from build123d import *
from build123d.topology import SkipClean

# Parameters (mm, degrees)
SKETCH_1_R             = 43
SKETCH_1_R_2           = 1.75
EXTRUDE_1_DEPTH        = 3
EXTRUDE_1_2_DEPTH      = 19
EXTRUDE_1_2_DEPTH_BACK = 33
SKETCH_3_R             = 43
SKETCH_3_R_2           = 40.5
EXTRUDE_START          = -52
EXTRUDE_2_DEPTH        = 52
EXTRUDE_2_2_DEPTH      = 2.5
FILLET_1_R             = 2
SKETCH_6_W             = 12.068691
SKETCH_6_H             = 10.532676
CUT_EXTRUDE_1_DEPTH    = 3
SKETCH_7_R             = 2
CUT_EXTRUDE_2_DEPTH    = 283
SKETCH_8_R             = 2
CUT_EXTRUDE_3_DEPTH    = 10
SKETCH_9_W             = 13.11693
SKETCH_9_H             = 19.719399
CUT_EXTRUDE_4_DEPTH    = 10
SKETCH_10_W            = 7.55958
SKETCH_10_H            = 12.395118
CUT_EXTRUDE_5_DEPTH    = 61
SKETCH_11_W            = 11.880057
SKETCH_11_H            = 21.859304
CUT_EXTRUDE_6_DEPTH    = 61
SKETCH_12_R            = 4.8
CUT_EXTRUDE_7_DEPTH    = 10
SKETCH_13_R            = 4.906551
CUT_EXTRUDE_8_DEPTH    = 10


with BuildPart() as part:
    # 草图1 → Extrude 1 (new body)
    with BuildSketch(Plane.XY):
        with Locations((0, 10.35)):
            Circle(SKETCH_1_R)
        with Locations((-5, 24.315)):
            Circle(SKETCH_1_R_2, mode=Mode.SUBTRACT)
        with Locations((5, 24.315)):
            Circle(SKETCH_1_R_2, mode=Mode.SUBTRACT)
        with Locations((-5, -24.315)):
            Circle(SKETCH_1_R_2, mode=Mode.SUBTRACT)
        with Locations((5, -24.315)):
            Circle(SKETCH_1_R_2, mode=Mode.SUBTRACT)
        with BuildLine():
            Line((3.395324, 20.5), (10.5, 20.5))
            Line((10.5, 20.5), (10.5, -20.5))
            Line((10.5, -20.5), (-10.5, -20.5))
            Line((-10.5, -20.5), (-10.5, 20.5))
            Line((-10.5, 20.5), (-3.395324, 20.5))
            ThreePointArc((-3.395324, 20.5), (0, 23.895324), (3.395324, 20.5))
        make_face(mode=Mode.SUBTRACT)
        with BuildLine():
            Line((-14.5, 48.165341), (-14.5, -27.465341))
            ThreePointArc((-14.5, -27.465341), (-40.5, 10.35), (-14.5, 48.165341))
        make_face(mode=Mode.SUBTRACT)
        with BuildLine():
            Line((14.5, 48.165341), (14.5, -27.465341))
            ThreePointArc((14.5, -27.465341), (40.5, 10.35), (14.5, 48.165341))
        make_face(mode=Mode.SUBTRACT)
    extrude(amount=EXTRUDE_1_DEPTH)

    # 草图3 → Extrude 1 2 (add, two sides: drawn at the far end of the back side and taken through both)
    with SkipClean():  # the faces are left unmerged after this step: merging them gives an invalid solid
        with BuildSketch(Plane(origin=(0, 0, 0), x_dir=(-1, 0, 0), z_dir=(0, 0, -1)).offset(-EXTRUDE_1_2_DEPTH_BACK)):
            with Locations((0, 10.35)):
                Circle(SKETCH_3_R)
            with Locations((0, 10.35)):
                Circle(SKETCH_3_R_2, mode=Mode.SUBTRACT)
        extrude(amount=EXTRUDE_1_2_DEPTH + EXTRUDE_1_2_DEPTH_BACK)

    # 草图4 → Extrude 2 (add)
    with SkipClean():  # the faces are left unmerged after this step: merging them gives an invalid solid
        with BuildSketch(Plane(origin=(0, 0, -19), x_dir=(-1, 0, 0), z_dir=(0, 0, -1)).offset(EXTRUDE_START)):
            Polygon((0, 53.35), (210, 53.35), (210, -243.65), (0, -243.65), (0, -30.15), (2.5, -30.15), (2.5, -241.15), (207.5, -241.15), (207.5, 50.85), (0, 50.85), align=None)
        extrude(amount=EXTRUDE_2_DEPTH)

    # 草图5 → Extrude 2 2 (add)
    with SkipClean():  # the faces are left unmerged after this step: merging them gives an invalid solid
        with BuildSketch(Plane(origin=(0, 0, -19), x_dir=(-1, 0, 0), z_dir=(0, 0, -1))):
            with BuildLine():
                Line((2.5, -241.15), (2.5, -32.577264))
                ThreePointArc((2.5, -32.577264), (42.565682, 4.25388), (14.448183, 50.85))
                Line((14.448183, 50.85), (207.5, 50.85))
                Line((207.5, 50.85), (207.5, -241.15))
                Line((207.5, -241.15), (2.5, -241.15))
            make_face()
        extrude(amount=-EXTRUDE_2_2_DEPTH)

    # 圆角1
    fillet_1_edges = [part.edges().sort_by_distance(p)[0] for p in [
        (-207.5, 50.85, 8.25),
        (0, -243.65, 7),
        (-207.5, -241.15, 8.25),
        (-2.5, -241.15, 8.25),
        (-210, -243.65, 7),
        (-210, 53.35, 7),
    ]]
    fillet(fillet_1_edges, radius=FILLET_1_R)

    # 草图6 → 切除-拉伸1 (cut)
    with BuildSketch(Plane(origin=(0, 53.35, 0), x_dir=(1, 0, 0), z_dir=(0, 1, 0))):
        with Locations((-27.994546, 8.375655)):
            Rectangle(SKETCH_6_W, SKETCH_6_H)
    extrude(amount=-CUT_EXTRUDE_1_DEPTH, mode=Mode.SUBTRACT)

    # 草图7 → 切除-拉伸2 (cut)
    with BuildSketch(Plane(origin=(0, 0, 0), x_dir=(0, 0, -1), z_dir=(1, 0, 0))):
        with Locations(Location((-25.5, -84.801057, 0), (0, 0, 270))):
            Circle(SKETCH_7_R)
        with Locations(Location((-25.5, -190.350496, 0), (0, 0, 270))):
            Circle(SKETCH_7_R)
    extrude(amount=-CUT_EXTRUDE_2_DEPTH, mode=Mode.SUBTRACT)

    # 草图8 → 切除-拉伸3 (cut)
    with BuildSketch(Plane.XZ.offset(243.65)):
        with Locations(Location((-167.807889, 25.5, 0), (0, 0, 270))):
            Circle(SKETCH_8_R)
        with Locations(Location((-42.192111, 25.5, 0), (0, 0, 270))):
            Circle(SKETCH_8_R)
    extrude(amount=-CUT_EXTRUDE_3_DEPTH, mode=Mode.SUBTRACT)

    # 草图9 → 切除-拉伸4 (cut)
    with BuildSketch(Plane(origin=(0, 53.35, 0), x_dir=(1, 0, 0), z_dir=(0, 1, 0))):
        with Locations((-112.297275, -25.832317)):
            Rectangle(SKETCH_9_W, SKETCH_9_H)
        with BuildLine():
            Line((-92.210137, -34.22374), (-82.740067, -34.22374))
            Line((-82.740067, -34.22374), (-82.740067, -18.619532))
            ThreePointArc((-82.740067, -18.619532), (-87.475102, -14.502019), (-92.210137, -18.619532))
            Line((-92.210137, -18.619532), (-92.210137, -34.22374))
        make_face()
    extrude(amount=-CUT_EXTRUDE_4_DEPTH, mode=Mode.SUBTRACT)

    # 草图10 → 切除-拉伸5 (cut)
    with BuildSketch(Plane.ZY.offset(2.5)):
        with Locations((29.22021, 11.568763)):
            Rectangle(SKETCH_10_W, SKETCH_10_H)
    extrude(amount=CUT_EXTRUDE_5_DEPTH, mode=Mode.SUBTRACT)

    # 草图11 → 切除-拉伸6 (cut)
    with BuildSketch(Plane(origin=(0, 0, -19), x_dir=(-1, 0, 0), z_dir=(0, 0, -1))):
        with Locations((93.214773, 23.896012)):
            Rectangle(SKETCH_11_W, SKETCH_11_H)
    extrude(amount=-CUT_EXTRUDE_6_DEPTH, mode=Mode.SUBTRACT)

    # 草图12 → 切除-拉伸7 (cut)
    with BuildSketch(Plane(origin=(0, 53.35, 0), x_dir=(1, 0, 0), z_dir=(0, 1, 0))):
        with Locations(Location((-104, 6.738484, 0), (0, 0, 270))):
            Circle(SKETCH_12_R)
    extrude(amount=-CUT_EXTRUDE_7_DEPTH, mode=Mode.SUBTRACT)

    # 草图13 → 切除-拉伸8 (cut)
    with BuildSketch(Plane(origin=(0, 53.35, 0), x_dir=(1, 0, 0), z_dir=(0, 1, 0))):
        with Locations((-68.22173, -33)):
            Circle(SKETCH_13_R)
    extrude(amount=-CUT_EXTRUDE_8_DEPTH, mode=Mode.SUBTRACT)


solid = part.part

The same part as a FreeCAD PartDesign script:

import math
import FreeCAD as App
import Part
import Sketcher


def edges_at(feature, points):
    """Names of the edges that pass closest to the given points."""
    edges = feature.Shape.Edges
    near = lambda p: min(range(len(edges)), key=lambda i: edges[i].distToShape(Part.Vertex(*p))[0])
    return sorted({f"Edge{near(p) + 1}" for p in points})

doc = App.newDocument("Part")
body = doc.addObject("PartDesign::Body", "Body")

# Sketch on XY plane
sketch1 = doc.addObject("Sketcher::SketchObject", "Sketch")
body.addObject(sketch1)
sketch1.AttachmentSupport = (doc.XY_Plane, [""])
sketch1.MapMode = "FlatFace"
sketch1.addGeometry([
    Part.Circle(App.Vector(0, 10.3, 0), App.Vector(0, 0, 1), 43),  # 0
    Part.Circle(App.Vector(-5, -24.3, 0), App.Vector(0, 0, 1), 1.8),  # 1
    Part.Circle(App.Vector(5, -24.3, 0), App.Vector(0, 0, 1), 1.8),  # 2
    Part.ArcOfCircle(Part.Circle(App.Vector(0, 20.5, 0), App.Vector(0, 0, 1), 3.4), math.radians(0), math.radians(180)),  # 3
    Part.LineSegment(App.Vector(3.4, 20.5, 0), App.Vector(10.5, 20.5, 0)),  # 4
    Part.LineSegment(App.Vector(10.5, 20.5, 0), App.Vector(10.5, -20.5, 0)),  # 5
    Part.LineSegment(App.Vector(10.5, -20.5, 0), App.Vector(-10.5, -20.5, 0)),  # 6
    Part.LineSegment(App.Vector(-10.5, -20.5, 0), App.Vector(-10.5, 20.5, 0)),  # 7
    Part.LineSegment(App.Vector(-10.5, 20.5, 0), App.Vector(-3.4, 20.5, 0)),  # 8
    Part.ArcOfCircle(Part.Circle(App.Vector(0, 10.3, 0), App.Vector(0, 0, 1), 40.5), math.radians(111), math.radians(249)),  # 9
    Part.LineSegment(App.Vector(-14.5, 48.2, 0), App.Vector(-14.5, -27.5, 0)),  # 10
    Part.Circle(App.Vector(-5, 24.3, 0), App.Vector(0, 0, 1), 1.8),  # 11
    Part.Circle(App.Vector(5, 24.3, 0), App.Vector(0, 0, 1), 1.8),  # 12
    Part.LineSegment(App.Vector(14.5, -27.5, 0), App.Vector(14.5, 48.2, 0)),  # 13
    Part.ArcOfCircle(Part.Circle(App.Vector(0, 10.3, 0), App.Vector(0, 0, 1), 40.5), math.radians(-69), math.radians(69)),  # 14
], False)
sketch1.addConstraint([
    Sketcher.Constraint("Coincident", 3, 1, 4, 1),
    Sketcher.Constraint("Coincident", 4, 2, 5, 1),
    Sketcher.Constraint("Coincident", 5, 2, 6, 1),
    Sketcher.Constraint("Coincident", 6, 2, 7, 1),
    Sketcher.Constraint("Coincident", 7, 2, 8, 1),
    Sketcher.Constraint("Coincident", 8, 2, 3, 2),
    Sketcher.Constraint("Coincident", 9, 1, 10, 1),
    Sketcher.Constraint("Coincident", 10, 2, 9, 2),
    Sketcher.Constraint("Coincident", 13, 1, 14, 1),
    Sketcher.Constraint("Coincident", 14, 2, 13, 2),
    Sketcher.Constraint("Horizontal", 4),
    Sketcher.Constraint("Vertical", 5),
    Sketcher.Constraint("Horizontal", 6),
    Sketcher.Constraint("Vertical", 7),
    Sketcher.Constraint("Horizontal", 8),
    Sketcher.Constraint("Vertical", 10),
    Sketcher.Constraint("Vertical", 13),
    Sketcher.Constraint("Coincident", 9, 3, 0, 3),
    Sketcher.Constraint("Coincident", 14, 3, 0, 3),
    Sketcher.Constraint("Equal", 1, 2),
    Sketcher.Constraint("Equal", 2, 11),
    Sketcher.Constraint("Equal", 11, 12),
    Sketcher.Constraint("Equal", 9, 14),
    Sketcher.Constraint("Symmetric", 2, 3, 11, 3, -1, 1),
    Sketcher.Constraint("Symmetric", 1, 3, 12, 3, -1, 1),
    Sketcher.Constraint("Symmetric", 4, 2, 6, 2, -1, 1),
    Sketcher.Constraint("Symmetric", 1, 3, 2, 3, -2),
    Sketcher.Constraint("Symmetric", 3, 1, 8, 2, -2),
    Sketcher.Constraint("Symmetric", 10, 2, 13, 1, -2),
    Sketcher.Constraint("Diameter", 0, 86.0),
    Sketcher.Constraint("Diameter", 1, 3.5),
    Sketcher.Constraint("Radius", 9, 40.5),
    Sketcher.Constraint("DistanceX", 6, 2, 6, 1, 21.0),
    Sketcher.Constraint("DistanceY", 5, 2, 5, 1, 41.0),
    Sketcher.Constraint("DistanceX", 1, 3, -1, 1, 5.0),
    Sketcher.Constraint("DistanceX", 9, 1, 7, 2, 4.0),
    Sketcher.Constraint("DistanceY", -1, 1, 3, 3, 20.5),
    Sketcher.Constraint("DistanceY", -1, 1, 0, 3, 10.35),
    Sketcher.Constraint("DistanceY", 1, 3, 11, 3, 48.63),
    Sketcher.Constraint("Radius", 3, 3.395324),
])
pad1 = doc.addObject("PartDesign::Pad", "Pad")
body.addObject(pad1)
pad1.Profile = sketch1
pad1.Length = 3

# Sketch on XY plane
sketch2 = doc.addObject("Sketcher::SketchObject", "Sketch001")
body.addObject(sketch2)
sketch2.AttachmentSupport = (doc.XY_Plane, [""])
sketch2.MapMode = "FlatFace"
sketch2.addGeometry([
    Part.Circle(App.Vector(0, 10, 0), App.Vector(0, 0, 1), 43),
    Part.Circle(App.Vector(0, 10, 0), App.Vector(0, 0, 1), 40),
], False)
sketch2.addConstraint([
    Sketcher.Constraint("Coincident", 1, 3, 0, 3),
    Sketcher.Constraint("PointOnObject", 0, 3, -2),
    Sketcher.Constraint("Diameter", 0, 86.0),
    Sketcher.Constraint("Diameter", 1, 81.0),
    Sketcher.Constraint("DistanceY", -1, 1, 0, 3, 10.35),
])
pad2 = doc.addObject("PartDesign::Pad", "Pad001")
body.addObject(pad2)
pad2.Profile = sketch2
pad2.Type = "TwoLengths"
pad2.Length = 19
pad2.Length2 = 33
pad2.Reversed = True

# Sketch on XY plane
sketch3 = doc.addObject("Sketcher::SketchObject", "Sketch002")
body.addObject(sketch3)
sketch3.AttachmentSupport = (doc.XY_Plane, [""])
sketch3.MapMode = "FlatFace"
sketch3.AttachmentOffset = App.Placement(App.Vector(0, 0, 33), App.Rotation())
sketch3.addGeometry([
    Part.LineSegment(App.Vector(-210, 53.4, 0), App.Vector(0, 53.4, 0)),  # 0
    Part.LineSegment(App.Vector(0, 53.4, 0), App.Vector(0, 50.9, 0)),  # 1
    Part.LineSegment(App.Vector(0, 50.9, 0), App.Vector(-207.5, 50.9, 0)),  # 2
    Part.LineSegment(App.Vector(-207.5, 50.9, 0), App.Vector(-207.5, -241.2, 0)),  # 3
    Part.LineSegment(App.Vector(-207.5, -241.2, 0), App.Vector(-2.5, -241.2, 0)),  # 4
    Part.LineSegment(App.Vector(-2.5, -241.2, 0), App.Vector(-2.5, -30.1, 0)),  # 5
    Part.LineSegment(App.Vector(-2.5, -30.1, 0), App.Vector(0, -30.1, 0)),  # 6
    Part.LineSegment(App.Vector(0, -30.1, 0), App.Vector(0, -243.7, 0)),  # 7
    Part.LineSegment(App.Vector(0, -243.7, 0), App.Vector(-210, -243.7, 0)),  # 8
    Part.LineSegment(App.Vector(-210, -243.7, 0), App.Vector(-210, 53.4, 0)),  # 9
], False)
sketch3.addConstraint([
    Sketcher.Constraint("Coincident", 0, 2, 1, 1),
    Sketcher.Constraint("Coincident", 1, 2, 2, 1),
    Sketcher.Constraint("Coincident", 2, 2, 3, 1),
    Sketcher.Constraint("Coincident", 3, 2, 4, 1),
    Sketcher.Constraint("Coincident", 4, 2, 5, 1),
    Sketcher.Constraint("Coincident", 5, 2, 6, 1),
    Sketcher.Constraint("Coincident", 6, 2, 7, 1),
    Sketcher.Constraint("Coincident", 7, 2, 8, 1),
    Sketcher.Constraint("Coincident", 8, 2, 9, 1),
    Sketcher.Constraint("Coincident", 9, 2, 0, 1),
    Sketcher.Constraint("Horizontal", 0),
    Sketcher.Constraint("Vertical", 1),
    Sketcher.Constraint("Horizontal", 2),
    Sketcher.Constraint("Vertical", 3),
    Sketcher.Constraint("Horizontal", 4),
    Sketcher.Constraint("Vertical", 5),
    Sketcher.Constraint("Horizontal", 6),
    Sketcher.Constraint("Vertical", 7),
    Sketcher.Constraint("Horizontal", 8),
    Sketcher.Constraint("Vertical", 9),
    Sketcher.Constraint("PointOnObject", 0, 2, -2),
    Sketcher.Constraint("PointOnObject", 6, 2, -2),
    Sketcher.Constraint("Equal", 6, 1),
    Sketcher.Constraint("DistanceX", 0, 1, 0, 2, 210.0),
    Sketcher.Constraint("DistanceX", 4, 1, 4, 2, 205.0),
    Sketcher.Constraint("DistanceY", 3, 2, 3, 1, 292.0),
    Sketcher.Constraint("DistanceY", 5, 1, 5, 2, 211.0),
    Sketcher.Constraint("DistanceY", 9, 1, 9, 2, 297.0),
    Sketcher.Constraint("DistanceX", 2, 2, 2, 1, 207.5),
    Sketcher.Constraint("DistanceY", -1, 1, 0, 2, 53.35),
])
pad3 = doc.addObject("PartDesign::Pad", "Pad002")
body.addObject(pad3)
pad3.Profile = sketch3
pad3.Length = 52
pad3.Reversed = True

# Sketch on XY plane
sketch4 = doc.addObject("Sketcher::SketchObject", "Sketch003")
body.addObject(sketch4)
sketch4.AttachmentSupport = (doc.XY_Plane, [""])
sketch4.MapMode = "FlatFace"
sketch4.AttachmentOffset = App.Placement(App.Vector(0, 0, -19), App.Rotation())
sketch4.addGeometry([
    Part.LineSegment(App.Vector(-2, -33, 0), App.Vector(-2, -241, 0)),  # 0
    Part.LineSegment(App.Vector(-2, -241, 0), App.Vector(-208, -241, 0)),  # 1
    Part.LineSegment(App.Vector(-208, -241, 0), App.Vector(-208, 51, 0)),  # 2
    Part.LineSegment(App.Vector(-208, 51, 0), App.Vector(-14, 51, 0)),  # 3
    Part.ArcOfCircle(Part.Circle(App.Vector(0, 10, 0), App.Vector(0, 0, 1), 43), math.radians(110), math.radians(267)),  # 4
], False)
sketch4.addConstraint([
    Sketcher.Constraint("Coincident", 0, 2, 1, 1),
    Sketcher.Constraint("Coincident", 1, 2, 2, 1),
    Sketcher.Constraint("Coincident", 2, 2, 3, 1),
    Sketcher.Constraint("Coincident", 3, 2, 4, 1),
    Sketcher.Constraint("Coincident", 4, 2, 0, 1),
    Sketcher.Constraint("Vertical", 0),
    Sketcher.Constraint("Horizontal", 1),
    Sketcher.Constraint("Vertical", 2),
    Sketcher.Constraint("Horizontal", 3),
    Sketcher.Constraint("PointOnObject", 4, 3, -2),
    Sketcher.Constraint("Radius", 4, 43.0),
    Sketcher.Constraint("DistanceX", 1, 2, 1, 1, 205.0),
    Sketcher.Constraint("DistanceY", 2, 1, 2, 2, 292.0),
    Sketcher.Constraint("DistanceX", 0, 2, -1, 1, 2.5),
    Sketcher.Constraint("DistanceY", 0, 2, 4, 3, 251.5),
    Sketcher.Constraint("DistanceY", -1, 1, 4, 3, 10.35),
])
pad4 = doc.addObject("PartDesign::Pad", "Pad003")
body.addObject(pad4)
pad4.Profile = sketch4
pad4.Length = 2.5
doc.recompute()

fillet = doc.addObject("PartDesign::Fillet", "Fillet")
body.addObject(fillet)
fillet.Base = (pad4, edges_at(pad4, [
    (-207.5, 50.85, 8.25),
    (0, -243.65, 7),
    (-207.5, -241.15, 8.25),
    (-2.5, -241.15, 8.25),
    (-210, -243.65, 7),
    (-210, 53.35, 7),
]))
fillet.Radius = 2

# Sketch on XZ plane
sketch5 = doc.addObject("Sketcher::SketchObject", "Sketch004")
body.addObject(sketch5)
sketch5.AttachmentSupport = (doc.XZ_Plane, [""])
sketch5.MapMode = "FlatFace"
sketch5.AttachmentOffset = App.Placement(App.Vector(0, 0, -53.35), App.Rotation())
sketch5.addGeometry([
    Part.LineSegment(App.Vector(-34, -14, 0), App.Vector(-34, -3, 0)),
    Part.LineSegment(App.Vector(-34, -3, 0), App.Vector(-22, -3, 0)),
    Part.LineSegment(App.Vector(-22, -3, 0), App.Vector(-22, -14, 0)),
    Part.LineSegment(App.Vector(-22, -14, 0), App.Vector(-34, -14, 0)),
], False)
sketch5.addConstraint([
    Sketcher.Constraint("Coincident", 0, 2, 1, 1),
    Sketcher.Constraint("Coincident", 1, 2, 2, 1),
    Sketcher.Constraint("Coincident", 2, 2, 3, 1),
    Sketcher.Constraint("Coincident", 3, 2, 0, 1),
    Sketcher.Constraint("Vertical", 0),
    Sketcher.Constraint("Horizontal", 1),
    Sketcher.Constraint("Vertical", 2),
    Sketcher.Constraint("Horizontal", 3),
    Sketcher.Constraint("DistanceX", 1, 1, 1, 2, 12.068691),
    Sketcher.Constraint("DistanceX", 1, 2, -1, 1, 21.9602),
    Sketcher.Constraint("DistanceY", 0, 1, 0, 2, 10.532676),
    Sketcher.Constraint("DistanceY", 0, 2, -1, 1, 3.109317),
])
pocket1 = doc.addObject("PartDesign::Pocket", "Pocket")
body.addObject(pocket1)
pocket1.Profile = sketch5
pocket1.Length = 3
pocket1.Reversed = True

# Sketch on YZ plane
sketch6 = doc.addObject("Sketcher::SketchObject", "Sketch005")
body.addObject(sketch6)
sketch6.AttachmentSupport = (doc.YZ_Plane, [""])
sketch6.MapMode = "FlatFace"
sketch6.addGeometry([
    Part.Circle(App.Vector(-84.8, 25.5, 0), App.Vector(0, 0, 1), 2),
    Part.Circle(App.Vector(-190.4, 25.5, 0), App.Vector(0, 0, 1), 2),
], False)
sketch6.addConstraint([
    Sketcher.Constraint("Equal", 0, 1),
    Sketcher.Constraint("Horizontal", 0, 3, 1, 3),
    Sketcher.Constraint("Diameter", 0, 4.0),
    Sketcher.Constraint("DistanceY", -1, 1, 0, 3, 25.5),
    Sketcher.Constraint("DistanceX", 1, 3, 0, 3, 105.549439),
    Sketcher.Constraint("DistanceX", 0, 3, -1, 1, 84.801057),
])
pocket2 = doc.addObject("PartDesign::Pocket", "Pocket001")
body.addObject(pocket2)
pocket2.Profile = sketch6
pocket2.Length = 283

# Sketch on XZ plane
sketch7 = doc.addObject("Sketcher::SketchObject", "Sketch006")
body.addObject(sketch7)
sketch7.AttachmentSupport = (doc.XZ_Plane, [""])
sketch7.MapMode = "FlatFace"
sketch7.AttachmentOffset = App.Placement(App.Vector(0, 0, 243.65), App.Rotation())
sketch7.addGeometry([
    Part.Circle(App.Vector(-167.8, 25.5, 0), App.Vector(0, 0, 1), 2),
    Part.Circle(App.Vector(-42.2, 25.5, 0), App.Vector(0, 0, 1), 2),
], False)
sketch7.addConstraint([
    Sketcher.Constraint("Equal", 0, 1),
    Sketcher.Constraint("Horizontal", 0, 3, 1, 3),
    Sketcher.Constraint("Diameter", 0, 4.0),
    Sketcher.Constraint("DistanceY", -1, 1, 0, 3, 25.5),
    Sketcher.Constraint("DistanceX", 0, 3, -1, 1, 167.807889),
    Sketcher.Constraint("DistanceX", 1, 3, -1, 1, 42.192111),
])
pocket3 = doc.addObject("PartDesign::Pocket", "Pocket002")
body.addObject(pocket3)
pocket3.Profile = sketch7
pocket3.Length = 10

# Sketch on XZ plane
sketch8 = doc.addObject("Sketcher::SketchObject", "Sketch007")
body.addObject(sketch8)
sketch8.AttachmentSupport = (doc.XZ_Plane, [""])
sketch8.MapMode = "FlatFace"
sketch8.AttachmentOffset = App.Placement(App.Vector(0, 0, -53.35), App.Rotation())
sketch8.addGeometry([
    Part.LineSegment(App.Vector(-118.9, 16, 0), App.Vector(-118.9, 35.7, 0)),  # 0
    Part.LineSegment(App.Vector(-118.9, 35.7, 0), App.Vector(-105.7, 35.7, 0)),  # 1
    Part.LineSegment(App.Vector(-105.7, 35.7, 0), App.Vector(-105.7, 16, 0)),  # 2
    Part.LineSegment(App.Vector(-105.7, 16, 0), App.Vector(-118.9, 16, 0)),  # 3
    Part.LineSegment(App.Vector(-92.2, 34.2, 0), App.Vector(-82.7, 34.2, 0)),  # 4
    Part.LineSegment(App.Vector(-82.7, 34.2, 0), App.Vector(-82.7, 18.6, 0)),  # 5
    Part.ArcOfCircle(Part.Circle(App.Vector(-87.5, 19.3, 0), App.Vector(0, 0, 1), 4.8), math.radians(-172), math.radians(-8)),  # 6
    Part.LineSegment(App.Vector(-92.2, 18.6, 0), App.Vector(-92.2, 34.2, 0)),  # 7
], False)
sketch8.addConstraint([
    Sketcher.Constraint("Coincident", 0, 2, 1, 1),
    Sketcher.Constraint("Coincident", 1, 2, 2, 1),
    Sketcher.Constraint("Coincident", 2, 2, 3, 1),
    Sketcher.Constraint("Coincident", 3, 2, 0, 1),
    Sketcher.Constraint("Coincident", 4, 2, 5, 1),
    Sketcher.Constraint("Coincident", 5, 2, 6, 2),
    Sketcher.Constraint("Coincident", 6, 1, 7, 1),
    Sketcher.Constraint("Coincident", 7, 2, 4, 1),
    Sketcher.Constraint("Vertical", 0),
    Sketcher.Constraint("Horizontal", 1),
    Sketcher.Constraint("Vertical", 2),
    Sketcher.Constraint("Horizontal", 3),
    Sketcher.Constraint("Horizontal", 4),
    Sketcher.Constraint("Vertical", 5),
    Sketcher.Constraint("Vertical", 7),
    Sketcher.Constraint("Horizontal", 5, 2, 6, 1),
    Sketcher.Constraint("Radius", 6, 4.781341),
    Sketcher.Constraint("DistanceY", 0, 1, 0, 2, 19.719399),
    Sketcher.Constraint("DistanceX", 1, 1, 1, 2, 13.11693),
    Sketcher.Constraint("DistanceX", 4, 1, 4, 2, 9.47007),
    Sketcher.Constraint("DistanceY", 5, 2, 5, 1, 15.604208),
    Sketcher.Constraint("DistanceY", -1, 1, 6, 3, 19.28336),
    Sketcher.Constraint("DistanceX", 0, 2, -1, 1, 118.85574),
    Sketcher.Constraint("DistanceX", 6, 3, -1, 1, 87.475102),
    Sketcher.Constraint("DistanceY", -1, 1, 0, 2, 35.692017),
])
pocket4 = doc.addObject("PartDesign::Pocket", "Pocket003")
body.addObject(pocket4)
pocket4.Profile = sketch8
pocket4.Length = 10
pocket4.Reversed = True

# Sketch on YZ plane
sketch9 = doc.addObject("Sketcher::SketchObject", "Sketch008")
body.addObject(sketch9)
sketch9.AttachmentSupport = (doc.YZ_Plane, [""])
sketch9.MapMode = "FlatFace"
sketch9.AttachmentOffset = App.Placement(App.Vector(0, 0, -2.5), App.Rotation())
sketch9.addGeometry([
    Part.LineSegment(App.Vector(18, 25, 0), App.Vector(5, 25, 0)),
    Part.LineSegment(App.Vector(5, 25, 0), App.Vector(5, 33, 0)),
    Part.LineSegment(App.Vector(5, 33, 0), App.Vector(18, 33, 0)),
    Part.LineSegment(App.Vector(18, 33, 0), App.Vector(18, 25, 0)),
], False)
sketch9.addConstraint([
    Sketcher.Constraint("Coincident", 0, 2, 1, 1),
    Sketcher.Constraint("Coincident", 1, 2, 2, 1),
    Sketcher.Constraint("Coincident", 2, 2, 3, 1),
    Sketcher.Constraint("Coincident", 3, 2, 0, 1),
    Sketcher.Constraint("Horizontal", 0),
    Sketcher.Constraint("Vertical", 1),
    Sketcher.Constraint("Horizontal", 2),
    Sketcher.Constraint("Vertical", 3),
    Sketcher.Constraint("DistanceY", -1, 1, 1, 2, 33.0),
    Sketcher.Constraint("DistanceY", 1, 1, 1, 2, 7.55958),
    Sketcher.Constraint("DistanceX", 0, 2, 0, 1, 12.395118),
    Sketcher.Constraint("DistanceX", -1, 1, 2, 2, 17.766322),
])
pocket5 = doc.addObject("PartDesign::Pocket", "Pocket004")
body.addObject(pocket5)
pocket5.Profile = sketch9
pocket5.Length = 61

# Sketch on XY plane
sketch10 = doc.addObject("Sketcher::SketchObject", "Sketch009")
body.addObject(sketch10)
sketch10.AttachmentSupport = (doc.XY_Plane, [""])
sketch10.MapMode = "FlatFace"
sketch10.AttachmentOffset = App.Placement(App.Vector(0, 0, -19), App.Rotation())
sketch10.addGeometry([
    Part.LineSegment(App.Vector(-87, 35, 0), App.Vector(-87, 13, 0)),
    Part.LineSegment(App.Vector(-87, 13, 0), App.Vector(-99, 13, 0)),
    Part.LineSegment(App.Vector(-99, 13, 0), App.Vector(-99, 35, 0)),
    Part.LineSegment(App.Vector(-99, 35, 0), App.Vector(-87, 35, 0)),
], False)
sketch10.addConstraint([
    Sketcher.Constraint("Coincident", 0, 2, 1, 1),
    Sketcher.Constraint("Coincident", 1, 2, 2, 1),
    Sketcher.Constraint("Coincident", 2, 2, 3, 1),
    Sketcher.Constraint("Coincident", 3, 2, 0, 1),
    Sketcher.Constraint("Vertical", 0),
    Sketcher.Constraint("Horizontal", 1),
    Sketcher.Constraint("Vertical", 2),
    Sketcher.Constraint("Horizontal", 3),
    Sketcher.Constraint("DistanceX", 1, 2, -1, 1, 99.154802),
    Sketcher.Constraint("DistanceX", 1, 2, 1, 1, 11.880057),
    Sketcher.Constraint("DistanceY", 0, 2, 0, 1, 21.859304),
    Sketcher.Constraint("DistanceY", -1, 1, 0, 2, 12.96636),
])
pocket6 = doc.addObject("PartDesign::Pocket", "Pocket005")
body.addObject(pocket6)
pocket6.Profile = sketch10
pocket6.Length = 61
pocket6.Reversed = True

# Sketch on XZ plane
sketch11 = doc.addObject("Sketcher::SketchObject", "Sketch010")
body.addObject(sketch11)
sketch11.AttachmentSupport = (doc.XZ_Plane, [""])
sketch11.MapMode = "FlatFace"
sketch11.AttachmentOffset = App.Placement(App.Vector(0, 0, -53.35), App.Rotation())
sketch11.addGeometry(Part.Circle(App.Vector(-104, -6.7, 0), App.Vector(0, 0, 1), 4.8), False)
sketch11.addConstraint([
    Sketcher.Constraint("Diameter", 0, 9.6),
    Sketcher.Constraint("DistanceX", 0, 3, -1, 1, 104.0),
    Sketcher.Constraint("DistanceY", 0, 3, -1, 1, 6.738484),
])
pocket7 = doc.addObject("PartDesign::Pocket", "Pocket006")
body.addObject(pocket7)
pocket7.Profile = sketch11
pocket7.Length = 10
pocket7.Reversed = True

# Sketch on XZ plane
sketch12 = doc.addObject("Sketcher::SketchObject", "Sketch011")
body.addObject(sketch12)
sketch12.AttachmentSupport = (doc.XZ_Plane, [""])
sketch12.MapMode = "FlatFace"
sketch12.AttachmentOffset = App.Placement(App.Vector(0, 0, -53.35), App.Rotation())
sketch12.addGeometry(Part.Circle(App.Vector(-68.2, 33, 0), App.Vector(0, 0, 1), 4.9), False)
sketch12.addConstraint([
    Sketcher.Constraint("DistanceY", -1, 1, 0, 3, 33.0),
    Sketcher.Constraint("Diameter", 0, 9.813102),
    Sketcher.Constraint("DistanceX", 0, 3, -1, 1, 68.22173),
])
pocket8 = doc.addObject("PartDesign::Pocket", "Pocket007")
body.addObject(pocket8)
pocket8.Profile = sketch12
pocket8.Length = 10
pocket8.Reversed = True

doc.recompute()
